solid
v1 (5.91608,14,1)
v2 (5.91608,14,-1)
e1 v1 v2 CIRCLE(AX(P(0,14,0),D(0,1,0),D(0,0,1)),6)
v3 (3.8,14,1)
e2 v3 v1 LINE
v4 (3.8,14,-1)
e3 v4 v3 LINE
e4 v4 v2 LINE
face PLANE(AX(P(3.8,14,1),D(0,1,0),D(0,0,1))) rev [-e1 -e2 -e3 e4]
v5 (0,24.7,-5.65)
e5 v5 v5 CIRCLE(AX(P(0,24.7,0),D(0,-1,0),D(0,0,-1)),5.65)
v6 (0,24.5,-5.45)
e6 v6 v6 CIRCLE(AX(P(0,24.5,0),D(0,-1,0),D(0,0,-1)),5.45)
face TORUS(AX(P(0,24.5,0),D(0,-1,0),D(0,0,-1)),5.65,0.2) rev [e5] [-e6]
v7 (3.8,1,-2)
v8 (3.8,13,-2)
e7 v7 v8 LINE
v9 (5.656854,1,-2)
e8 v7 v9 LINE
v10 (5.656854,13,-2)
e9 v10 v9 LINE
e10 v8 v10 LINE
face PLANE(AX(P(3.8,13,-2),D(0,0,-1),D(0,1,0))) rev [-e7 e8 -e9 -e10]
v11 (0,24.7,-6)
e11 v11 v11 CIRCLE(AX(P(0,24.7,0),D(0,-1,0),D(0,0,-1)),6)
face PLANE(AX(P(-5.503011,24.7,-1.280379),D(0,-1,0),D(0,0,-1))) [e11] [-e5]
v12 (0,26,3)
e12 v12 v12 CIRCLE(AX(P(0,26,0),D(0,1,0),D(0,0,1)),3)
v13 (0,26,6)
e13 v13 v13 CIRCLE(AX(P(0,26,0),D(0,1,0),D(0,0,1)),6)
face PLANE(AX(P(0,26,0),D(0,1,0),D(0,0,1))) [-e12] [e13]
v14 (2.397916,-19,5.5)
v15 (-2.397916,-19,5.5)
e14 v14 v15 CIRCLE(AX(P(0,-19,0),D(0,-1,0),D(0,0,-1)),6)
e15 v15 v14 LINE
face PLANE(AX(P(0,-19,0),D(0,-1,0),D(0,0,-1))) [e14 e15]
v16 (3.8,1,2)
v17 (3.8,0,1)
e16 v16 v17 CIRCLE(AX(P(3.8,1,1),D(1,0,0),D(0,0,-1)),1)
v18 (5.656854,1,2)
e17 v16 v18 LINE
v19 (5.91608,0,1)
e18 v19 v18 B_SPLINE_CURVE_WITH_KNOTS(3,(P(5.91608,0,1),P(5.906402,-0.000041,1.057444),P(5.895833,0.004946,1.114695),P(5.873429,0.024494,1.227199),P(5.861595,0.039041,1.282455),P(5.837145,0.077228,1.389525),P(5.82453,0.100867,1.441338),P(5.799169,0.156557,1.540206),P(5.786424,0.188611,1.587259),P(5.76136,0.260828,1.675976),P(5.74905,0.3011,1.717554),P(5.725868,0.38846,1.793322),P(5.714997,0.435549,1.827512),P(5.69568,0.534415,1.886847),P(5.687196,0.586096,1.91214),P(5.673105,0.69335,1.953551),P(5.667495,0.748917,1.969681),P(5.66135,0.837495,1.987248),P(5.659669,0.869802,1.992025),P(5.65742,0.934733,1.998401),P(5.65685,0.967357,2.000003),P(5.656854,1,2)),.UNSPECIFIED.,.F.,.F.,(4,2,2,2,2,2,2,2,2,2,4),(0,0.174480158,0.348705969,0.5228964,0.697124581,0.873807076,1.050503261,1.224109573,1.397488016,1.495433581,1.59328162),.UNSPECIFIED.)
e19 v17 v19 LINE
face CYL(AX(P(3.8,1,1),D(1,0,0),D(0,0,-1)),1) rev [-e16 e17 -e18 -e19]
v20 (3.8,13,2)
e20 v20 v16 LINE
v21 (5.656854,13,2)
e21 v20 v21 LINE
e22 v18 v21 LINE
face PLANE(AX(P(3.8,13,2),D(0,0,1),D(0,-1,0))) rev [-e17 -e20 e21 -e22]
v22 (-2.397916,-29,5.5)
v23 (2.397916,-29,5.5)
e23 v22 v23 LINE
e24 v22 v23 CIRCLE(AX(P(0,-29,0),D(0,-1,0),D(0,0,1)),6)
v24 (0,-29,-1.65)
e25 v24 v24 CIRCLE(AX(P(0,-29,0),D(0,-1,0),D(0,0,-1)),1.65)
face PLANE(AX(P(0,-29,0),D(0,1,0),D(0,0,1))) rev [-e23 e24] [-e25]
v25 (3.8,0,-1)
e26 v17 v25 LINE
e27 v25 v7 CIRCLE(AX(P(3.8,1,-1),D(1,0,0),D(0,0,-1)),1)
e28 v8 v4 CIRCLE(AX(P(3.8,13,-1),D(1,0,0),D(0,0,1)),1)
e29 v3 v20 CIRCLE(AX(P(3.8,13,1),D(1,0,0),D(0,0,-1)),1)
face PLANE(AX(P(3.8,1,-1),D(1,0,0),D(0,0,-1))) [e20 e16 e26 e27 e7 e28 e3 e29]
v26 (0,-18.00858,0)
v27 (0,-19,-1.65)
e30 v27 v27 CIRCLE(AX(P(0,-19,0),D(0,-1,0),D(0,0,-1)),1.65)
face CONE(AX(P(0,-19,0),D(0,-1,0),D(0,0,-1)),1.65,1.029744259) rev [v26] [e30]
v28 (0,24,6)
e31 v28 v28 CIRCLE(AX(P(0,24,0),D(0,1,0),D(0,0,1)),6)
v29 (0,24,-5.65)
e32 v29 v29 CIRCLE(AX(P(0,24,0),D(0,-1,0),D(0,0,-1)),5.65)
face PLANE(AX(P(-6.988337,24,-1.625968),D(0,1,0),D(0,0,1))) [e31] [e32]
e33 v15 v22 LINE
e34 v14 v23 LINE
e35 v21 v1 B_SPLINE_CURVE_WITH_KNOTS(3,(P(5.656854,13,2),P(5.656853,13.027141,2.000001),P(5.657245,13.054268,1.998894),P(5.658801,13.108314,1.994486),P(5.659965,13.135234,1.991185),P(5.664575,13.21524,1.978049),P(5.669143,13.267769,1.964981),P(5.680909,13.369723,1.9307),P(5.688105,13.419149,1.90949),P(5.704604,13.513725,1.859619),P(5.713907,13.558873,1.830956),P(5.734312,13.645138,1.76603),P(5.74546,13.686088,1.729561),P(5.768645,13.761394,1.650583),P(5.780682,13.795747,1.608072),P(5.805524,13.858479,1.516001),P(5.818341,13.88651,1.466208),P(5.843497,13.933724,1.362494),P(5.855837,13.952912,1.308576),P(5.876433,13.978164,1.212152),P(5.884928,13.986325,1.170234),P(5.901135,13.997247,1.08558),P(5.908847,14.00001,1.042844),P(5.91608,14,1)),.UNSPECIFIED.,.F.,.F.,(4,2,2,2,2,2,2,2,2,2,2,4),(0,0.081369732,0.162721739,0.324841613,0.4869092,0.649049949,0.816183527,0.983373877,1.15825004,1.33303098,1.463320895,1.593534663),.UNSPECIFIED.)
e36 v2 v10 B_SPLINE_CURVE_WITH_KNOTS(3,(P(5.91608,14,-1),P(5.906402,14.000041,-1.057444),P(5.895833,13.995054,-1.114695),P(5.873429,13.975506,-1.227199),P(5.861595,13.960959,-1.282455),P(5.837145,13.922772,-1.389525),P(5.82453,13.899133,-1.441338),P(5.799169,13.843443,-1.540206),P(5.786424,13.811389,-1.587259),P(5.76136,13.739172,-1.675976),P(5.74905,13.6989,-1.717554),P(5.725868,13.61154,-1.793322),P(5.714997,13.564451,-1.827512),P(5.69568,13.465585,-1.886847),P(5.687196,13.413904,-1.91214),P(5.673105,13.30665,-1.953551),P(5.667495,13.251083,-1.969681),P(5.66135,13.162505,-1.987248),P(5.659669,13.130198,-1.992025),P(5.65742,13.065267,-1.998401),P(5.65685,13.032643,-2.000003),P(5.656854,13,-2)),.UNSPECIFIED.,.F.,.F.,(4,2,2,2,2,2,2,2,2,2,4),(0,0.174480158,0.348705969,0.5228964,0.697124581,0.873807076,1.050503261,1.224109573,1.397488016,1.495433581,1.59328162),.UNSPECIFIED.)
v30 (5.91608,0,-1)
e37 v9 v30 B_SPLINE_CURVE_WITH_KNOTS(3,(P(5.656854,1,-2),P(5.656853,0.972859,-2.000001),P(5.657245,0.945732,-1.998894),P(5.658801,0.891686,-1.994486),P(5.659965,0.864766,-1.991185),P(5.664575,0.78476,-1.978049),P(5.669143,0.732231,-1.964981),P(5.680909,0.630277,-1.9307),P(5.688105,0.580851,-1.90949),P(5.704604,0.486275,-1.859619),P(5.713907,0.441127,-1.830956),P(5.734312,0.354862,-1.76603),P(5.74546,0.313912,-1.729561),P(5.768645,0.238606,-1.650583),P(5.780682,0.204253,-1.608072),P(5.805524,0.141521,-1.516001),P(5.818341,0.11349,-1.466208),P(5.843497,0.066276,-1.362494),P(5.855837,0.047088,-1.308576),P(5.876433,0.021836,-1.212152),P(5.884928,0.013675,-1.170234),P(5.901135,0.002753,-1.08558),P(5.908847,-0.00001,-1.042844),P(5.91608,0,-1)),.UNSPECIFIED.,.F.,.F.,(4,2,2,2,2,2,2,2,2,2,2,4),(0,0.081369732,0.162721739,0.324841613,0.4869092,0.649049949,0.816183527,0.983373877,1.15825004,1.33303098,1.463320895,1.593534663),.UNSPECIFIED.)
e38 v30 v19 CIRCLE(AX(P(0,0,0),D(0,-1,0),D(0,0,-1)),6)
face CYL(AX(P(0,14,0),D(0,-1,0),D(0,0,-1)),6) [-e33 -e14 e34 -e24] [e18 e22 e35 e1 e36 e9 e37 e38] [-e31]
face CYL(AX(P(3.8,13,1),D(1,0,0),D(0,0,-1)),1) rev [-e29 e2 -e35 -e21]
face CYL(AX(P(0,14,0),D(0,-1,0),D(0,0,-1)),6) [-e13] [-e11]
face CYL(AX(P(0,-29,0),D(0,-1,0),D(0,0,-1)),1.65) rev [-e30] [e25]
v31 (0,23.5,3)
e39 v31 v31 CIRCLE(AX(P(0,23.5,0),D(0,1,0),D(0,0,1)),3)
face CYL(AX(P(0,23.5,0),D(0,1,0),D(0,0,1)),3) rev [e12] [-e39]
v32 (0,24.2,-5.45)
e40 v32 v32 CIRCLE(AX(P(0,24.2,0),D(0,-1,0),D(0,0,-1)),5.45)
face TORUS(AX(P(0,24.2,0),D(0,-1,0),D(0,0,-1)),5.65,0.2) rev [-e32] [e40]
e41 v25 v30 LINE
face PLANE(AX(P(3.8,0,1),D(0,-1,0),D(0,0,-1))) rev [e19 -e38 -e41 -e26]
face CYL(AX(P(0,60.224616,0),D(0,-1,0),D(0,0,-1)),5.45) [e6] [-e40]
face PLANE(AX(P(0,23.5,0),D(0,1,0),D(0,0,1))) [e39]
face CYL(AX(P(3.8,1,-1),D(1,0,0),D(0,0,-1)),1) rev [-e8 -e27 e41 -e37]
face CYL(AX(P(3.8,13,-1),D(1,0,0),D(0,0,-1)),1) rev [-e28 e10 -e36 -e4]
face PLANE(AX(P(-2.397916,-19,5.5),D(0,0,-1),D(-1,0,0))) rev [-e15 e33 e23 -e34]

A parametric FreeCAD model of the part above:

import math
import FreeCAD as App
import Part
import Sketcher

V = App.Vector
Q = App.Units.Quantity

doc = App.newDocument("Part")
params = doc.addObject("Spreadsheet::Sheet", "Params")
for row, (alias, value) in enumerate([
    ("sketch1_radius", "6 mm"),
    ("pad1_length", "14 mm"),
    ("sketch2_diameter", "12 mm"),
    ("pad2_length", "12 mm"),
    ("sketch3_diameter", "12 mm"),
    ("pad3_length", "15 mm"),
    ("sketch4_radius", "0.2 mm"),
    ("sketch4_length", "0.7 mm"),
    ("groove_angle", "360 deg"),
    ("sketch5_radius", "1 mm"),
    ("sketch5_width", "12 mm"),
    ("sketch5_height", "2 mm"),
    ("pocket1_length", "2.2 mm"),
    ("sketch6_radius", "6 mm"),
    ("pad4_length", "14 mm"),
    ("sketch7_radius", "6 mm"),
    ("pocket2_length", "10 mm"),
    ("sketch8_diameter", "6 mm"),
    ("pocket3_length", "2.5 mm"),
    ("sketch9_diameter", "3.3 mm"),
    ("hole_diameter", "3.3 mm"),
    ("hole_depth", "10 mm"),
], start=1):
    params.set(f"A{row}", alias)
    params.set(f"B{row}", "=" + value)
    params.setAlias(f"B{row}", alias)

body = doc.addObject("PartDesign::Body", "Body")

# Sketch on XZ plane
sketch1 = doc.addObject("Sketcher::SketchObject", "Sketch")
body.addObject(sketch1)
sketch1.AttachmentSupport = (doc.XZ_Plane, [""])
sketch1.MapMode = "FlatFace"
sketch1.addGeometry([
    Part.ArcOfCircle(Part.Circle(V(0, 0, 0), V(0, 0, 1), 6), math.radians(19), math.radians(341)),
    Part.ArcOfCircle(Part.Circle(V(0, 0, 0), V(0, 0, 1), 6), math.radians(-19), math.radians(19)),
], False)
sketch1.addConstraint([
    Sketcher.Constraint("Tangent", 0, 1, 1, 2),
    Sketcher.Constraint("Coincident", 1, 1, 0, 2),
    Sketcher.Constraint("Coincident", 0, 3, -1, 1),
    Sketcher.Constraint("Vertical", 0, 1, 1, 1),
    Sketcher.Constraint("Radius", 0, Q("6 mm")),
    Sketcher.Constraint("DistanceY", -1, 1, 0, 1, Q("2 mm")),
])
sketch1.setExpression("Constraints[4]", "Params.sketch1_radius")
pad1 = doc.addObject("PartDesign::Pad", "Pad")
body.addObject(pad1)
pad1.Profile = sketch1
pad1.setExpression("Length", "Params.pad1_length")
pad1.Reversed = True

# Sketch on XZ plane
sketch2 = doc.addObject("Sketcher::SketchObject", "Sketch001")
body.addObject(sketch2)
sketch2.AttachmentSupport = (doc.XZ_Plane, [""])
sketch2.MapMode = "FlatFace"
sketch2.AttachmentOffset = App.Placement(V(0, 0, -14), App.Rotation())
sketch2.addGeometry(Part.Circle(V(0, 0, 0), V(0, 0, 1), 6), False)
sketch2.addConstraint([
    Sketcher.Constraint("Coincident", 0, 3, -1, 1),
    Sketcher.Constraint("Diameter", 0, Q("12 mm")),
])
sketch2.setExpression("Constraints[1]", "Params.sketch2_diameter")
pad2 = doc.addObject("PartDesign::Pad", "Pad001")
body.addObject(pad2)
pad2.Profile = sketch2
pad2.setExpression("Length", "Params.pad2_length")
pad2.Reversed = True

# Sketch on XZ plane
sketch3 = doc.addObject("Sketcher::SketchObject", "Sketch002")
body.addObject(sketch3)
sketch3.AttachmentSupport = (doc.XZ_Plane, [""])
sketch3.MapMode = "FlatFace"
sketch3.AttachmentOffset = App.Placement(V(0, 0, 15), App.Rotation())
sketch3.addGeometry(Part.Circle(V(0, 0, 0), V(0, 0, 1), 6), False)
sketch3.addConstraint([
    Sketcher.Constraint("Coincident", 0, 3, -1, 1),
    Sketcher.Constraint("Diameter", 0, Q("12 mm")),
])
sketch3.setExpression("Constraints[1]", "Params.sketch3_diameter")
pad3 = doc.addObject("PartDesign::Pad", "Pad002")
body.addObject(pad3)
pad3.Profile = sketch3
pad3.setExpression("Length", "Params.pad3_length")
pad3.Reversed = True

# Sketch on an angled plane
sketch4 = doc.addObject("Sketcher::SketchObject", "Sketch003")
body.addObject(sketch4)
sketch4.Placement = App.Placement(V(1.604253, 12.18289, 0.37326), App.Rotation(V(-0.934326243, 0.282447697, -0.217388523), V(-0.275099609, -0.9592827, -0.064007083), V(-0.226615703, 0, 0.973984252), "ZXY"))
sketch4.addGeometry([
    Part.LineSegment(V(10.54, -9.95, 0), V(12, -9.52, 0)),  # 0
    Part.LineSegment(V(12, -9.52, 0), V(11.8, -8.84, 0)),  # 1
    Part.LineSegment(V(11.8, -8.84, 0), V(10.34, -9.27, 0)),  # 2
    Part.ArcOfCircle(Part.Circle(V(10.39, -9.47, 0), V(0, 0, 1), 0.2), math.radians(106), math.radians(196)),  # 3
    Part.LineSegment(V(10.2, -9.52, 0), V(10.29, -9.81, 0)),  # 4
    Part.ArcOfCircle(Part.Circle(V(10.48, -9.75, 0), V(0, 0, 1), 0.2), math.radians(-164), math.radians(-74)),  # 5
], False)
sketch4.addGeometry(Part.LineSegment(V(5.12, -11.54, 0), V(4.92, -10.87, 0)), True)  # axis
sketch4.addConstraint([
    Sketcher.Constraint("Coincident", 0, 2, 1, 1),
    Sketcher.Constraint("Coincident", 1, 2, 2, 1),
    Sketcher.Constraint("Tangent", 2, 2, 3, 1),
    Sketcher.Constraint("Tangent", 3, 2, 4, 1),
    Sketcher.Constraint("Tangent", 4, 2, 5, 1),
    Sketcher.Constraint("Tangent", 5, 2, 0, 1),
    Sketcher.Constraint("Equal", 3, 5),
    Sketcher.Constraint("Perpendicular", 0, 1),
    Sketcher.Constraint("Perpendicular", 1, 2),
    Sketcher.Constraint("Perpendicular", 2, 4),
    Sketcher.Constraint("Parallel", 4, 6),
    Sketcher.Constraint("Equal", 1, 6),
    Sketcher.Constraint("Radius", 3, Q("0.2 mm")),
    Sketcher.Constraint("Distance", 1, Q("0.7 mm")),
    Sketcher.Constraint("Distance", 0, Q("1.525 mm")),
    Sketcher.Constraint("DistanceX", -1, 1, 2, 2, Q("10.337701 mm")),
    Sketcher.Constraint("DistanceY", 2, 2, -1, 1, Q("9.274899 mm")),
    Sketcher.Constraint("DistanceX", 6, 1, 4, 2, Q("5.171601 mm")),
    Sketcher.Constraint("DistanceY", 6, 2, 4, 2, Q("1.059699 mm")),
    Sketcher.Constraint("DistanceX", -1, 1, 3, 3, Q("10.39419 mm")),
])
sketch4.setExpression("Constraints[12]", "Params.sketch4_radius")
sketch4.setExpression("Constraints[13]", "Params.sketch4_length")
groove = doc.addObject("PartDesign::Groove", "Groove")
body.addObject(groove)
groove.Profile = sketch4
groove.ReferenceAxis = (sketch4, ["Axis0"])
groove.setExpression("Angle", "Params.groove_angle")

# Sketch on YZ plane
sketch5 = doc.addObject("Sketcher::SketchObject", "Sketch004")
body.addObject(sketch5)
sketch5.AttachmentSupport = (doc.YZ_Plane, [""])
sketch5.MapMode = "FlatFace"
sketch5.AttachmentOffset = App.Placement(V(0, 0, 6), App.Rotation())
sketch5.addGeometry([
    Part.LineSegment(V(14, -1, 0), V(14, 1, 0)),  # 0
    Part.ArcOfCircle(Part.Circle(V(13, 1, 0), V(0, 0, 1), 1), math.radians(0), math.radians(90)),  # 1
    Part.LineSegment(V(13, 2, 0), V(1, 2, 0)),  # 2
    Part.ArcOfCircle(Part.Circle(V(1, 1, 0), V(0, 0, 1), 1), math.radians(90), math.radians(180)),  # 3
    Part.LineSegment(V(0, 1, 0), V(0, -1, 0)),  # 4
    Part.ArcOfCircle(Part.Circle(V(1, -1, 0), V(0, 0, 1), 1), math.radians(-180), math.radians(-90)),  # 5
    Part.LineSegment(V(1, -2, 0), V(13, -2, 0)),  # 6
    Part.ArcOfCircle(Part.Circle(V(13, -1, 0), V(0, 0, 1), 1), math.radians(-90), math.radians(0)),  # 7
], False)
sketch5.addConstraint([
    Sketcher.Constraint("Tangent", 0, 2, 1, 1),
    Sketcher.Constraint("Tangent", 1, 2, 2, 1),
    Sketcher.Constraint("Tangent", 2, 2, 3, 1),
    Sketcher.Constraint("Tangent", 3, 2, 4, 1),
    Sketcher.Constraint("Tangent", 4, 2, 5, 1),
    Sketcher.Constraint("Tangent", 5, 2, 6, 1),
    Sketcher.Constraint("Tangent", 6, 2, 7, 1),
    Sketcher.Constraint("Tangent", 7, 2, 0, 1),
    Sketcher.Constraint("Vertical", 0),
    Sketcher.Constraint("Horizontal", 2),
    Sketcher.Constraint("Vertical", 4),
    Sketcher.Constraint("Horizontal", 6),
    Sketcher.Constraint("Equal", 1, 3),
    Sketcher.Constraint("Equal", 3, 5),
    Sketcher.Constraint("Equal", 5, 7),
    Sketcher.Constraint("Symmetric", 3, 2, 4, 2, -1, 1),
    Sketcher.Constraint("Radius", 1, Q("1 mm")),
    Sketcher.Constraint("DistanceX", 2, 2, 2, 1, Q("12 mm")),
    Sketcher.Constraint("DistanceY", 0, 1, 0, 2, Q("2 mm")),
])
sketch5.setExpression("Constraints[16]", "Params.sketch5_radius")
sketch5.setExpression("Constraints[17]", "Params.sketch5_width")
sketch5.setExpression("Constraints[18]", "Params.sketch5_height")
pocket1 = doc.addObject("PartDesign::Pocket", "Pocket")
body.addObject(pocket1)
pocket1.Profile = sketch5
pocket1.setExpression("Length", "Params.pocket1_length")

# Sketch on XZ plane
sketch6 = doc.addObject("Sketcher::SketchObject", "Sketch005")
body.addObject(sketch6)
sketch6.AttachmentSupport = (doc.XZ_Plane, [""])
sketch6.MapMode = "FlatFace"
sketch6.AttachmentOffset = App.Placement(V(0, 0, 29), App.Rotation())
sketch6.addGeometry([
    Part.ArcOfCircle(Part.Circle(V(0, 0, 0), V(0, 0, 1), 6), math.radians(-66), math.radians(246)),
    Part.ArcOfCircle(Part.Circle(V(0, 0, 0), V(0, 0, 1), 6), math.radians(-114), math.radians(-66)),
], False)
sketch6.addConstraint([
    Sketcher.Constraint("Tangent", 0, 1, 1, 2),
    Sketcher.Constraint("Coincident", 1, 1, 0, 2),
    Sketcher.Constraint("Coincident", 0, 3, -1, 1),
    Sketcher.Constraint("Horizontal", 0, 1, 1, 1),
    Sketcher.Constraint("Radius", 0, Q("6 mm")),
    Sketcher.Constraint("DistanceY", 0, 1, -1, 1, Q("5.5 mm")),
])
sketch6.setExpression("Constraints[4]", "Params.sketch6_radius")
pad4 = doc.addObject("PartDesign::Pad", "Pad003")
body.addObject(pad4)
pad4.Profile = sketch6
pad4.setExpression("Length", "Params.pad4_length")
pad4.Reversed = True

# Sketch on XZ plane
sketch7 = doc.addObject("Sketcher::SketchObject", "Sketch006")
body.addObject(sketch7)
sketch7.AttachmentSupport = (doc.XZ_Plane, [""])
sketch7.MapMode = "FlatFace"
sketch7.AttachmentOffset = App.Placement(V(0, 0, 29), App.Rotation())
sketch7.addGeometry([
    Part.LineSegment(V(-2.4, 5.5, 0), V(2.4, 5.5, 0)),
    Part.ArcOfCircle(Part.Circle(V(0, 0, 0), V(0, 0, 1), 6), math.radians(66), math.radians(114)),
], False)
sketch7.addConstraint([
    Sketcher.Constraint("Coincident", 0, 1, 1, 2),
    Sketcher.Constraint("Coincident", 1, 1, 0, 2),
    Sketcher.Constraint("Horizontal", 0),
    Sketcher.Constraint("Coincident", 1, 3, -1, 1),
    Sketcher.Constraint("Radius", 1, Q("6 mm")),
    Sketcher.Constraint("DistanceY", -1, 1, 0, 1, Q("5.5 mm")),
])
sketch7.setExpression("Constraints[4]", "Params.sketch7_radius")
pocket2 = doc.addObject("PartDesign::Pocket", "Pocket001")
body.addObject(pocket2)
pocket2.Profile = sketch7
pocket2.setExpression("Length", "Params.pocket2_length")

# Sketch on XZ plane
sketch8 = doc.addObject("Sketcher::SketchObject", "Sketch007")
body.addObject(sketch8)
sketch8.AttachmentSupport = (doc.XZ_Plane, [""])
sketch8.MapMode = "FlatFace"
sketch8.AttachmentOffset = App.Placement(V(0, 0, -26), App.Rotation())
sketch8.addGeometry(Part.Circle(V(0, 0, 0), V(0, 0, 1), 3), False)
sketch8.addConstraint([
    Sketcher.Constraint("Coincident", 0, 3, -1, 1),
    Sketcher.Constraint("Diameter", 0, Q("6 mm")),
])
sketch8.setExpression("Constraints[1]", "Params.sketch8_diameter")
pocket3 = doc.addObject("PartDesign::Pocket", "Pocket002")
body.addObject(pocket3)
pocket3.Profile = sketch8
pocket3.setExpression("Length", "Params.pocket3_length")
pocket3.Reversed = True

# Sketch on XZ plane
sketch9 = doc.addObject("Sketcher::SketchObject", "Sketch008")
body.addObject(sketch9)
sketch9.AttachmentSupport = (doc.XZ_Plane, [""])
sketch9.MapMode = "FlatFace"
sketch9.AttachmentOffset = App.Placement(V(0, 0, 29), App.Rotation())
sketch9.addGeometry(Part.Circle(V(0, 0, 0), V(0, 0, 1), 1.6), False)
sketch9.addConstraint([
    Sketcher.Constraint("Coincident", 0, 3, -1, 1),
    Sketcher.Constraint("Diameter", 0, Q("3.3 mm")),
])
sketch9.setExpression("Constraints[1]", "Params.sketch9_diameter")
doc.recompute()
hole = doc.addObject("PartDesign::Hole", "Hole")
body.addObject(hole)
hole.Profile = sketch9
hole.ThreadType = "None"
hole.setExpression("Diameter", "Params.hole_diameter")
hole.DepthType = "Dimension"
hole.setExpression("Depth", "Params.hole_depth")
hole.DrillPoint = "Angled"
hole.DrillPointAngle = 118

doc.recompute()
